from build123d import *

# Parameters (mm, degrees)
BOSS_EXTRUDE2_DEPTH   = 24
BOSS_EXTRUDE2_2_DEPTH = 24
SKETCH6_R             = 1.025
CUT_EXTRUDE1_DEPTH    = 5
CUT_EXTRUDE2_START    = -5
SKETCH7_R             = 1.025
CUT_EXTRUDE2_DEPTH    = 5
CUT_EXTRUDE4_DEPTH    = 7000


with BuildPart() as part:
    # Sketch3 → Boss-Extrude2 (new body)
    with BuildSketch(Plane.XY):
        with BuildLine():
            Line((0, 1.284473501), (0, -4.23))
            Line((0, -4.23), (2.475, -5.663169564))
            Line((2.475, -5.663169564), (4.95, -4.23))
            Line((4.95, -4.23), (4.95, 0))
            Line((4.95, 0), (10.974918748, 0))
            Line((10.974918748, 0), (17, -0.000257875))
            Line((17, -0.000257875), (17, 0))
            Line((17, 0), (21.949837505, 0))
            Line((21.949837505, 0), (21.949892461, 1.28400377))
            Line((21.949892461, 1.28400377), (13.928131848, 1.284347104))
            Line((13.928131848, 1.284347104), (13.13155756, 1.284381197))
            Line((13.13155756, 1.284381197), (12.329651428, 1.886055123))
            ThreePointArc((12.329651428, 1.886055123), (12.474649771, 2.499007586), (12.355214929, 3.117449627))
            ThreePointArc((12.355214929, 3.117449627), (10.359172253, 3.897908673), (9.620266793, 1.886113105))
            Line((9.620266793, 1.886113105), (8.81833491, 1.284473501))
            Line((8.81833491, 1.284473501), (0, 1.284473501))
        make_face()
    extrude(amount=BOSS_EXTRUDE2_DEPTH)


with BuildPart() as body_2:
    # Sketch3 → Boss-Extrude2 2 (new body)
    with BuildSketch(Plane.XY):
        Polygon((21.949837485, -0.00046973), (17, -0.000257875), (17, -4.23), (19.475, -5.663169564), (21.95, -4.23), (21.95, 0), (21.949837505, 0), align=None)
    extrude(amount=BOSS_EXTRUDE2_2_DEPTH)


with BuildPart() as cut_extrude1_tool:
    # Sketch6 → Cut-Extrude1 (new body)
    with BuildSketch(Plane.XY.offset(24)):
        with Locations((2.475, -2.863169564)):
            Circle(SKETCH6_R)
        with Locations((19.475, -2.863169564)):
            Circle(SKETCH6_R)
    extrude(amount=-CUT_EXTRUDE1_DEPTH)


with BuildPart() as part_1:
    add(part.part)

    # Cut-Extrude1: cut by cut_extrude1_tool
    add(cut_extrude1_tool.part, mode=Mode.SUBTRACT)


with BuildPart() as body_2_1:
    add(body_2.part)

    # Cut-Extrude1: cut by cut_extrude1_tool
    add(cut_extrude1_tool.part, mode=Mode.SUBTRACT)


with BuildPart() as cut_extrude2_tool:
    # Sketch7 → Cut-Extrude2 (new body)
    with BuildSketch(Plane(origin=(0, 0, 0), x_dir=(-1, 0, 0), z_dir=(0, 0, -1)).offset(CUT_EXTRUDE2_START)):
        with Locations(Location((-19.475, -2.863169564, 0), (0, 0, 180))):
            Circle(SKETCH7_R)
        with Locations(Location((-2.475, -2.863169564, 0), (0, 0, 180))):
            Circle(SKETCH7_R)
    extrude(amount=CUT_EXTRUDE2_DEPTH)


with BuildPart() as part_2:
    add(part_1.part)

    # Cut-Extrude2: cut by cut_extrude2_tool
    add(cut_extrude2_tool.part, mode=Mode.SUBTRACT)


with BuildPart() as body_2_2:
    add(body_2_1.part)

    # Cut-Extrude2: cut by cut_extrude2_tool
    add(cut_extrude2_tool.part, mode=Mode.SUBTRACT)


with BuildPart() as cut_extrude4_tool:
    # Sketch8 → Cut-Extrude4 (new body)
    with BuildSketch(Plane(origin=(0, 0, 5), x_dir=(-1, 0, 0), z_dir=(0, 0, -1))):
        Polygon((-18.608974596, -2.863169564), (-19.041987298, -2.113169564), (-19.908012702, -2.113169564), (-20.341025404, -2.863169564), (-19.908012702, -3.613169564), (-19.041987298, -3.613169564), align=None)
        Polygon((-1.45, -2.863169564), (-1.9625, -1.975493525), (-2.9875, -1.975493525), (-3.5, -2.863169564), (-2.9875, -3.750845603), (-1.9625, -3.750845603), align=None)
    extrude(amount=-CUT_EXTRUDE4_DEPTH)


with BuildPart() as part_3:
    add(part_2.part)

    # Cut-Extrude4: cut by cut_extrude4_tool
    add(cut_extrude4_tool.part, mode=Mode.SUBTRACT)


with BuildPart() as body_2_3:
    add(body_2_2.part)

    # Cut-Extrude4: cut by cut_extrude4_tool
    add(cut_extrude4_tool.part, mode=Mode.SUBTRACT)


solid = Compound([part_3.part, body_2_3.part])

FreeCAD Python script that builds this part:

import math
import FreeCAD as App
import Part
import Sketcher

V = App.Vector
Q = App.Units.Quantity

doc = App.newDocument("Part")
params = doc.addObject("Spreadsheet::Sheet", "Params")
for row, (alias, value) in enumerate([
    ("sketch1_radius", "1.5 mm"),
    ("sketch1_height", "4.23 mm"),
    ("sketch1_length", "2.86 mm"),
    ("pad1_length", "24 mm"),
    ("sketch2_height", "4.23 mm"),
    ("sketch2_length", "2.86 mm"),
    ("pad2_length", "24 mm"),
    ("sketch3_diameter", "2.05 mm"),
    ("pad3_length", "5 mm"),
    ("sketch4_diameter", "2.05 mm"),
    ("pad4_length", "5 mm"),
    ("pad5_length", "7000 mm"),
], start=1):
    params.set(f"A{row}", alias)
    params.set(f"B{row}", "=" + value)
    params.setAlias(f"B{row}", alias)

body = doc.addObject("PartDesign::Body", "Body")

# Sketch on XY plane
sketch1 = body.newObject("Sketcher::SketchObject", "Sketch")
sketch1.AttachmentSupport = (doc.getObject("XY_Plane"), [""])
sketch1.MapMode = "FlatFace"
sketch1.addGeometry(Part.LineSegment(V(0, 1.28447, 0), V(0, -4.23, 0)), False)
sketch1.addGeometry(Part.LineSegment(V(0, -4.23, 0), V(2.475, -5.66317, 0)), False)
sketch1.addGeometry(Part.LineSegment(V(2.475, -5.66317, 0), V(4.95, -4.23, 0)), False)
sketch1.addGeometry(Part.LineSegment(V(4.95, -4.23, 0), V(4.95, 0, 0)), False)
sketch1.addGeometry(Part.LineSegment(V(4.95, 0, 0), V(10.97492, 0, 0)), False)
sketch1.addGeometry(Part.LineSegment(V(10.97492, 0, 0), V(17, -0.00026, 0)), False)
sketch1.addGeometry(Part.LineSegment(V(17, -0.00026, 0), V(17, 0, 0)), False)
sketch1.addGeometry(Part.LineSegment(V(17, 0, 0), V(21.94984, 0, 0)), False)
sketch1.addGeometry(Part.LineSegment(V(21.94984, 0, 0), V(21.94989, 1.284, 0)), False)
sketch1.addGeometry(Part.LineSegment(V(21.94989, 1.284, 0), V(13.92813, 1.28435, 0)), False)
sketch1.addGeometry(Part.LineSegment(V(13.92813, 1.28435, 0), V(13.13156, 1.28438, 0)), False)
sketch1.addGeometry(Part.LineSegment(V(13.13156, 1.28438, 0), V(12.32965, 1.88606, 0)), False)
sketch1.addGeometry(Part.ArcOfCircle(Part.Circle(V(10.97497, 2.53014, 0), V(0, 0, 1), 1.5), math.radians(-25), math.radians(23)), False)
sketch1.addGeometry(Part.ArcOfCircle(Part.Circle(V(10.97497, 2.53014, 0), V(0, 0, 1), 1.5), math.radians(23), math.radians(205)), False)
sketch1.addGeometry(Part.LineSegment(V(9.62027, 1.88611, 0), V(8.81833, 1.28447, 0)), False)
sketch1.addGeometry(Part.LineSegment(V(8.81833, 1.28447, 0), V(0, 1.28447, 0)), False)
sketch1.addConstraint(Sketcher.Constraint("Coincident", 0, 2, 1, 1))
sketch1.addConstraint(Sketcher.Constraint("Coincident", 1, 2, 2, 1))
sketch1.addConstraint(Sketcher.Constraint("Coincident", 2, 2, 3, 1))
sketch1.addConstraint(Sketcher.Constraint("Coincident", 3, 2, 4, 1))
sketch1.addConstraint(Sketcher.Constraint("Coincident", 4, 2, 5, 1))
sketch1.addConstraint(Sketcher.Constraint("Coincident", 5, 2, 6, 1))
sketch1.addConstraint(Sketcher.Constraint("Coincident", 6, 2, 7, 1))
sketch1.addConstraint(Sketcher.Constraint("Coincident", 7, 2, 8, 1))
sketch1.addConstraint(Sketcher.Constraint("Coincident", 8, 2, 9, 1))
sketch1.addConstraint(Sketcher.Constraint("Coincident", 9, 2, 10, 1))
sketch1.addConstraint(Sketcher.Constraint("Coincident", 10, 2, 11, 1))
sketch1.addConstraint(Sketcher.Constraint("Coincident", 11, 2, 12, 1))
sketch1.addConstraint(Sketcher.Constraint("Tangent", 12, 2, 13, 1))
sketch1.addConstraint(Sketcher.Constraint("Coincident", 13, 2, 14, 1))
sketch1.addConstraint(Sketcher.Constraint("Coincident", 14, 2, 15, 1))
sketch1.addConstraint(Sketcher.Constraint("Coincident", 15, 2, 0, 1))
sketch1.addConstraint(Sketcher.Constraint("Vertical", 0))
sketch1.addConstraint(Sketcher.Constraint("Vertical", 3))
sketch1.addConstraint(Sketcher.Constraint("Horizontal", 4))
sketch1.addConstraint(Sketcher.Constraint("Vertical", 6))
sketch1.addConstraint(Sketcher.Constraint("Horizontal", 7))
sketch1.addConstraint(Sketcher.Constraint("Horizontal", 15))
sketch1.addConstraint(Sketcher.Constraint("Equal", 12, 13))
sketch1.addConstraint(Sketcher.Constraint("PointOnObject", 0, 2, -2))
sketch1.addConstraint(Sketcher.Constraint("PointOnObject", 3, 2, -1))
sketch1.addConstraint(Sketcher.Constraint("PointOnObject", 6, 2, -1))
sketch1.addConstraint(Sketcher.Constraint("Perpendicular", 5, 8))
sketch1.addConstraint(Sketcher.Constraint("Perpendicular", 8, 9))
sketch1.addConstraint(Sketcher.Constraint("Parallel", 9, 10))
sketch1.addConstraint(Sketcher.Constraint("Horizontal", 0, 2, 2, 2))
sketch1.addConstraint(Sketcher.Constraint("Equal", 1, 2))
sketch1.addConstraint(Sketcher.Constraint("Equal", 11, 14))
sketch1.addConstraint(Sketcher.Constraint("Radius", 12, Q("1.5 mm")))
sketch1.addConstraint(Sketcher.Constraint("DistanceX", -1, 1, 5, 2, Q("17 mm")))
sketch1.addConstraint(Sketcher.Constraint("DistanceY", 3, 1, 3, 2, Q("4.23 mm")))
sketch1.addConstraint(Sketcher.Constraint("Distance", 1, Q("2.86 mm")))
sketch1.addConstraint(Sketcher.Constraint("DistanceX", -1, 1, 2, 2, Q("4.95 mm")))
sketch1.addConstraint(Sketcher.Constraint("DistanceX", 4, 1, 4, 2, Q("6.024919 mm")))
sketch1.addConstraint(Sketcher.Constraint("DistanceY", 5, 2, 13, 3, Q("2.530398 mm")))
sketch1.addConstraint(Sketcher.Constraint("Distance", 9, Q("8.021761 mm")))
sketch1.addConstraint(Sketcher.Constraint("Distance", 11, Q("1.002529 mm")))
sketch1.addConstraint(Sketcher.Constraint("DistanceX", 7, 1, 7, 2, Q("4.949838 mm")))
sketch1.addConstraint(Sketcher.Constraint("DistanceX", 15, 2, 15, 1, Q("8.818335 mm")))
sketch1.addConstraint(Sketcher.Constraint("DistanceY", 0, 2, 0, 1, Q("5.514474 mm")))
sketch1.addConstraint(Sketcher.Constraint("DistanceY", 6, 1, 6, 2, Q("0.000258 mm")))
sketch1.addConstraint(Sketcher.Constraint("DistanceY", -1, 1, 10, 2, Q("1.284381 mm")))
sketch1.addConstraint(Sketcher.Constraint("DistanceX", -1, 1, 11, 2, Q("12.329651 mm")))
sketch1.addConstraint(Sketcher.Constraint("DistanceY", -1, 1, 12, 2, Q("3.11745 mm")))
sketch1.addConstraint(Sketcher.Constraint("DistanceX", 13, 3, 8, 2, Q("10.97492 mm")))
sketch1.setExpression("Constraints[32]", "Params.sketch1_radius")
sketch1.setExpression("Constraints[34]", "Params.sketch1_height")
sketch1.setExpression("Constraints[35]", "Params.sketch1_length")
pad1 = body.newObject("PartDesign::Pad", "Pad")
pad1.Profile = sketch1
pad1.setExpression("Length", "Params.pad1_length")
body2 = doc.addObject("PartDesign::Body", "Body001")

# Sketch on XY plane
sketch2 = body2.newObject("Sketcher::SketchObject", "Sketch001")
sketch2.AttachmentSupport = (doc.getObject("XY_Plane001"), [""])
sketch2.MapMode = "FlatFace"
sketch2.addGeometry(Part.LineSegment(V(21.94984, -0.00047, 0), V(17, -0.00026, 0)), False)
sketch2.addGeometry(Part.LineSegment(V(17, -0.00026, 0), V(17, -4.23, 0)), False)
sketch2.addGeometry(Part.LineSegment(V(17, -4.23, 0), V(19.475, -5.66317, 0)), False)
sketch2.addGeometry(Part.LineSegment(V(19.475, -5.66317, 0), V(21.95, -4.23, 0)), False)
sketch2.addGeometry(Part.LineSegment(V(21.95, -4.23, 0), V(21.95, 0, 0)), False)
sketch2.addGeometry(Part.LineSegment(V(21.95, 0, 0), V(21.94984, 0, 0)), False)
sketch2.addGeometry(Part.LineSegment(V(21.94984, 0, 0), V(21.94984, -0.00047, 0)), False)
sketch2.addConstraint(Sketcher.Constraint("Coincident", 0, 2, 1, 1))
sketch2.addConstraint(Sketcher.Constraint("Coincident", 1, 2, 2, 1))
sketch2.addConstraint(Sketcher.Constraint("Coincident", 2, 2, 3, 1))
sketch2.addConstraint(Sketcher.Constraint("Coincident", 3, 2, 4, 1))
sketch2.addConstraint(Sketcher.Constraint("Coincident", 4, 2, 5, 1))
sketch2.addConstraint(Sketcher.Constraint("Coincident", 5, 2, 6, 1))
sketch2.addConstraint(Sketcher.Constraint("Coincident", 6, 2, 0, 1))
sketch2.addConstraint(Sketcher.Constraint("Vertical", 1))
sketch2.addConstraint(Sketcher.Constraint("Vertical", 4))
sketch2.addConstraint(Sketcher.Constraint("Horizontal", 5))
sketch2.addConstraint(Sketcher.Constraint("Vertical", 6))
sketch2.addConstraint(Sketcher.Constraint("PointOnObject", 4, 2, -1))
sketch2.addConstraint(Sketcher.Constraint("Horizontal", 1, 2, 3, 2))
sketch2.addConstraint(Sketcher.Constraint("Equal", 2, 3))
sketch2.addConstraint(Sketcher.Constraint("DistanceX", -1, 1, 0, 2, Q("17 mm")))
sketch2.addConstraint(Sketcher.Constraint("DistanceY", 4, 1, 4, 2, Q("4.23 mm")))
sketch2.addConstraint(Sketcher.Constraint("Distance", 2, Q("2.86 mm")))
sketch2.addConstraint(Sketcher.Constraint("DistanceX", -1, 1, 3, 2, Q("21.95 mm")))
sketch2.addConstraint(Sketcher.Constraint("DistanceY", 6, 2, 6, 1, Q("0.00047 mm")))
sketch2.addConstraint(Sketcher.Constraint("DistanceX", 5, 2, 5, 1, Q("0.000162 mm")))
sketch2.addConstraint(Sketcher.Constraint("DistanceY", 1, 2, 1, 1, Q("4.229742 mm")))
sketch2.setExpression("Constraints[15]", "Params.sketch2_height")
sketch2.setExpression("Constraints[16]", "Params.sketch2_length")
pad2 = body2.newObject("PartDesign::Pad", "Pad001")
pad2.Profile = sketch2
pad2.setExpression("Length", "Params.pad2_length")
body3 = doc.addObject("PartDesign::Body", "Body002")
body3.AllowCompound = True

# Sketch on XY plane
sketch3 = body3.newObject("Sketcher::SketchObject", "Sketch002")
sketch3.AttachmentSupport = (doc.getObject("XY_Plane002"), [""])
sketch3.MapMode = "FlatFace"
sketch3.AttachmentOffset = App.Placement(V(0, 0, 24), App.Rotation())
sketch3.addGeometry(Part.Circle(V(2.5, -2.9, 0), V(0, 0, 1), 1), False)
sketch3.addGeometry(Part.Circle(V(19.5, -2.9, 0), V(0, 0, 1), 1), False)
sketch3.addConstraint(Sketcher.Constraint("Equal", 0, 1))
sketch3.addConstraint(Sketcher.Constraint("Horizontal", 0, 3, 1, 3))
sketch3.addConstraint(Sketcher.Constraint("Diameter", 0, Q("2.05 mm")))
sketch3.addConstraint(Sketcher.Constraint("DistanceX", 0, 3, 1, 3, Q("17 mm")))
sketch3.addConstraint(Sketcher.Constraint("DistanceX", -1, 1, 0, 3, Q("2.475 mm")))
sketch3.addConstraint(Sketcher.Constraint("DistanceY", 0, 3, -1, 1, Q("2.86317 mm")))
sketch3.setExpression("Constraints[2]", "Params.sketch3_diameter")
pad3 = body3.newObject("PartDesign::Pad", "Pad002")
pad3.Profile = sketch3
pad3.setExpression("Length", "Params.pad3_length")
pad3.Reversed = True
doc.recompute()

body4 = doc.addObject("PartDesign::Body", "Body003")
body4.BaseFeature = body3
boolean = body.newObject("PartDesign::Boolean", "Boolean")
boolean.Type = "Cut"
boolean.addObjects([body4])
doc.recompute()

boolean2 = body2.newObject("PartDesign::Boolean", "Boolean001")
boolean2.Type = "Cut"
boolean2.addObjects([body3])
body5 = doc.addObject("PartDesign::Body", "Body004")
body5.AllowCompound = True

# Sketch on XY plane
sketch4 = body5.newObject("Sketcher::SketchObject", "Sketch003")
sketch4.AttachmentSupport = (doc.getObject("XY_Plane004"), [""])
sketch4.MapMode = "FlatFace"
sketch4.AttachmentOffset = App.Placement(V(0, 0, 5), App.Rotation())
sketch4.addGeometry(Part.Circle(V(19.5, -2.9, 0), V(0, 0, 1), 1), False)
sketch4.addGeometry(Part.Circle(V(2.5, -2.9, 0), V(0, 0, 1), 1), False)
sketch4.addConstraint(Sketcher.Constraint("Equal", 0, 1))
sketch4.addConstraint(Sketcher.Constraint("Horizontal", 0, 3, 1, 3))
sketch4.addConstraint(Sketcher.Constraint("Diameter", 0, Q("2.05 mm")))
sketch4.addConstraint(Sketcher.Constraint("DistanceX", 1, 3, 0, 3, Q("17 mm")))
sketch4.addConstraint(Sketcher.Constraint("DistanceX", -1, 1, 0, 3, Q("19.475 mm")))
sketch4.addConstraint(Sketcher.Constraint("DistanceY", 0, 3, -1, 1, Q("2.86317 mm")))
sketch4.setExpression("Constraints[2]", "Params.sketch4_diameter")
pad4 = body5.newObject("PartDesign::Pad", "Pad003")
pad4.Profile = sketch4
pad4.setExpression("Length", "Params.pad4_length")
pad4.Reversed = True
doc.recompute()

body6 = doc.addObject("PartDesign::Body", "Body005")
body6.BaseFeature = body5
boolean3 = body.newObject("PartDesign::Boolean", "Boolean002")
boolean3.Type = "Cut"
boolean3.addObjects([body6])
doc.recompute()

boolean4 = body2.newObject("PartDesign::Boolean", "Boolean003")
boolean4.Type = "Cut"
boolean4.addObjects([body5])
body7 = doc.addObject("PartDesign::Body", "Body006")
body7.AllowCompound = True

# Sketch on XY plane
sketch5 = body7.newObject("Sketcher::SketchObject", "Sketch004")
sketch5.AttachmentSupport = (doc.getObject("XY_Plane006"), [""])
sketch5.MapMode = "FlatFace"
sketch5.AttachmentOffset = App.Placement(V(0, 0, 5), App.Rotation())
sketch5.addGeometry(Part.LineSegment(V(18.6, -2.9, 0), V(19, -2.1, 0)), False)
sketch5.addGeometry(Part.LineSegment(V(19, -2.1, 0), V(19.9, -2.1, 0)), False)
sketch5.addGeometry(Part.LineSegment(V(19.9, -2.1, 0), V(20.3, -2.9, 0)), False)
sketch5.addGeometry(Part.LineSegment(V(20.3, -2.9, 0), V(19.9, -3.6, 0)), False)
sketch5.addGeometry(Part.LineSegment(V(19.9, -3.6, 0), V(19, -3.6, 0)), False)
sketch5.addGeometry(Part.LineSegment(V(19, -3.6, 0), V(18.6, -2.9, 0)), False)
sketch5.addGeometry(Part.LineSegment(V(1.4, -2.9, 0), V(2, -2, 0)), False)
sketch5.addGeometry(Part.LineSegment(V(2, -2, 0), V(3, -2, 0)), False)
sketch5.addGeometry(Part.LineSegment(V(3, -2, 0), V(3.5, -2.9, 0)), False)
sketch5.addGeometry(Part.LineSegment(V(3.5, -2.9, 0), V(3, -3.8, 0)), False)
sketch5.addGeometry(Part.LineSegment(V(3, -3.8, 0), V(2, -3.8, 0)), False)
sketch5.addGeometry(Part.LineSegment(V(2, -3.8, 0), V(1.4, -2.9, 0)), False)
sketch5.addConstraint(Sketcher.Constraint("Coincident", 0, 2, 1, 1))
sketch5.addConstraint(Sketcher.Constraint("Coincident", 1, 2, 2, 1))
sketch5.addConstraint(Sketcher.Constraint("Coincident", 2, 2, 3, 1))
sketch5.addConstraint(Sketcher.Constraint("Coincident", 3, 2, 4, 1))
sketch5.addConstraint(Sketcher.Constraint("Coincident", 4, 2, 5, 1))
sketch5.addConstraint(Sketcher.Constraint("Coincident", 5, 2, 0, 1))
sketch5.addConstraint(Sketcher.Constraint("Coincident", 6, 2, 7, 1))
sketch5.addConstraint(Sketcher.Constraint("Coincident", 7, 2, 8, 1))
sketch5.addConstraint(Sketcher.Constraint("Coincident", 8, 2, 9, 1))
sketch5.addConstraint(Sketcher.Constraint("Coincident", 9, 2, 10, 1))
sketch5.addConstraint(Sketcher.Constraint("Coincident", 10, 2, 11, 1))
sketch5.addConstraint(Sketcher.Constraint("Coincident", 11, 2, 6, 1))
sketch5.addConstraint(Sketcher.Constraint("Horizontal", 1))
sketch5.addConstraint(Sketcher.Constraint("Horizontal", 4))
sketch5.addConstraint(Sketcher.Constraint("Horizontal", 7))
sketch5.addConstraint(Sketcher.Constraint("Horizontal", 10))
sketch5.addConstraint(Sketcher.Constraint("Parallel", 0, 3))
sketch5.addConstraint(Sketcher.Constraint("Parallel", 2, 5))
sketch5.addConstraint(Sketcher.Constraint("Parallel", 3, 6))
sketch5.addConstraint(Sketcher.Constraint("Parallel", 5, 8))
sketch5.addConstraint(Sketcher.Constraint("Parallel", 6, 9))
sketch5.addConstraint(Sketcher.Constraint("Parallel", 8, 11))
sketch5.addConstraint(Sketcher.Constraint("Horizontal", 2, 2, 5, 2))
sketch5.addConstraint(Sketcher.Constraint("Horizontal", 5, 2, 8, 2))
sketch5.addConstraint(Sketcher.Constraint("Horizontal", 8, 2, 11, 2))
sketch5.addConstraint(Sketcher.Constraint("Vertical", 1, 2, 3, 2))
sketch5.addConstraint(Sketcher.Constraint("Vertical", 0, 2, 4, 2))
sketch5.addConstraint(Sketcher.Constraint("Vertical", 7, 2, 9, 2))
sketch5.addConstraint(Sketcher.Constraint("Angle", 0, Q("60 deg")))
sketch5.addConstraint(Sketcher.Constraint("DistanceX", -1, 1, 8, 2, Q("3.5 mm")))
sketch5.addConstraint(Sketcher.Constraint("DistanceY", 3, 2, 1, 2, Q("1.5 mm")))
sketch5.addConstraint(Sketcher.Constraint("DistanceX", 7, 1, 7, 2, Q("1.025 mm")))
sketch5.addConstraint(Sketcher.Constraint("DistanceX", -1, 1, 11, 2, Q("1.45 mm")))
sketch5.addConstraint(Sketcher.Constraint("DistanceX", 1, 1, 1, 2, Q("0.866025 mm")))
sketch5.addConstraint(Sketcher.Constraint("DistanceY", 0, 2, -1, 1, Q("2.11317 mm")))
sketch5.addConstraint(Sketcher.Constraint("DistanceX", -1, 1, 0, 2, Q("19.041987 mm")))
pad5 = body7.newObject("PartDesign::Pad", "Pad004")
pad5.Profile = sketch5
pad5.setExpression("Length", "Params.pad5_length")
doc.recompute()

body8 = doc.addObject("PartDesign::Body", "Body007")
body8.BaseFeature = body7
boolean5 = body.newObject("PartDesign::Boolean", "Boolean004")
boolean5.Type = "Cut"
boolean5.addObjects([body8])
doc.recompute()

boolean6 = body2.newObject("PartDesign::Boolean", "Boolean005")
boolean6.Type = "Cut"
boolean6.addObjects([body7])

doc.recompute()
